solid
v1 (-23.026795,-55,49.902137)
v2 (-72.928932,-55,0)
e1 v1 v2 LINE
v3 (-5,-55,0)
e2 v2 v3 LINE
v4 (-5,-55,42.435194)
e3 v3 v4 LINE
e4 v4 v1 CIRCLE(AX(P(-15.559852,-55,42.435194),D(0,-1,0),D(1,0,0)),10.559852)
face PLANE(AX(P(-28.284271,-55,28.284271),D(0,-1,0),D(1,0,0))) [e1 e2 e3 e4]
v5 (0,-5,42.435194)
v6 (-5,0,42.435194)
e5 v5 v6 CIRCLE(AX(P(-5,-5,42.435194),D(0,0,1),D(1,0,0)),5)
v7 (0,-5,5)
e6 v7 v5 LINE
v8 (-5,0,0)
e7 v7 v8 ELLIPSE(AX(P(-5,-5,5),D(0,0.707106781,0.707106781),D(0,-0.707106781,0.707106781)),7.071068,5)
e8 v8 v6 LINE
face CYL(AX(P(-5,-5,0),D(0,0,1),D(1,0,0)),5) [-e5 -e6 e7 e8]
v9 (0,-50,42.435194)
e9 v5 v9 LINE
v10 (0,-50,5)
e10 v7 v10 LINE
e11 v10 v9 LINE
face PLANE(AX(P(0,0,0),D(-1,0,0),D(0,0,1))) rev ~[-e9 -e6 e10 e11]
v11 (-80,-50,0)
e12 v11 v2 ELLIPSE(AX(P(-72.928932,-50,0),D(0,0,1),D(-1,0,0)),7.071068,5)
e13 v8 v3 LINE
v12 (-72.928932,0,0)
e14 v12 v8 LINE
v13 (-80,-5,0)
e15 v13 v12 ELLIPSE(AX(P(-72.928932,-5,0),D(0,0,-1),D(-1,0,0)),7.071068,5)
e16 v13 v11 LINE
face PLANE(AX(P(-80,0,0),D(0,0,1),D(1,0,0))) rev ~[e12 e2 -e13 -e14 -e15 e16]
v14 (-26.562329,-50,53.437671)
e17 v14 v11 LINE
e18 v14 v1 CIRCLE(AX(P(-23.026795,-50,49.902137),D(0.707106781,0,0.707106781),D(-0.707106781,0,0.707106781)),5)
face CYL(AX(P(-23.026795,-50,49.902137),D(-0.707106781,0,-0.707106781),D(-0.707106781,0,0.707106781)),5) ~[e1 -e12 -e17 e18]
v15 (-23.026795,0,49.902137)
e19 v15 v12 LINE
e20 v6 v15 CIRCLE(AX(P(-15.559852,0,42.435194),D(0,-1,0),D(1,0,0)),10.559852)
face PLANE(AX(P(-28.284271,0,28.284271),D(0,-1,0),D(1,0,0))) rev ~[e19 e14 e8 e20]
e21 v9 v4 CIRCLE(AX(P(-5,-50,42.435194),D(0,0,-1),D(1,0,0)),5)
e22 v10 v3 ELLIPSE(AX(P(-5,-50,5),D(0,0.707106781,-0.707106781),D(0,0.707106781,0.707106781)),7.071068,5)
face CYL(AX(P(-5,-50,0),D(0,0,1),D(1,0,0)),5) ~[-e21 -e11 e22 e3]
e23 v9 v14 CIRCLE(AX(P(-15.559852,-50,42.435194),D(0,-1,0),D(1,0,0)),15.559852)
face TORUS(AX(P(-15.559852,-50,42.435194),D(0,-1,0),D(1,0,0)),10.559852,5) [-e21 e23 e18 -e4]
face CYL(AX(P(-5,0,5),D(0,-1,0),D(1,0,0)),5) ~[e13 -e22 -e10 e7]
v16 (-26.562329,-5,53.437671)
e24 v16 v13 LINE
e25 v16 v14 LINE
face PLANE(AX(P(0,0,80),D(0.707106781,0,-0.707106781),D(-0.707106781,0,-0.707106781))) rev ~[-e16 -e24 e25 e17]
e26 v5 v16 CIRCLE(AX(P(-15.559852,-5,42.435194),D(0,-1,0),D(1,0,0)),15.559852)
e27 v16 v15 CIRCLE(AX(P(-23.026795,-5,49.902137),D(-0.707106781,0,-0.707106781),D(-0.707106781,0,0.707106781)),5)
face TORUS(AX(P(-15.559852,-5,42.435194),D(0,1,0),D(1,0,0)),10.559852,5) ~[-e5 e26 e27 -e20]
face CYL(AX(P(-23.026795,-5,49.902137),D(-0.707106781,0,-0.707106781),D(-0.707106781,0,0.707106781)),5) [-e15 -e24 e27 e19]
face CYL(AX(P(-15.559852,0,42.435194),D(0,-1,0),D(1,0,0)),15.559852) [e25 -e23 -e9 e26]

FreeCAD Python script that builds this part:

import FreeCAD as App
import Part
import Sketcher
from FreeCAD import Vector
Q = App.Units.Quantity


def edges_at(feature, points):
    """Names of the edges that pass closest to the given points."""
    edges = feature.Shape.Edges
    near = lambda p: min(range(len(edges)), key=lambda i: edges[i].distToShape(Part.Vertex(*p))[0])
    return sorted({f"Edge{near(p) + 1}" for p in points})

doc = App.newDocument("Part")
body = doc.addObject("PartDesign::Body", "Body")

# Sketch on XZ plane
sketch1 = body.newObject("Sketcher::SketchObject", "Sketch")
sketch1.AttachmentSupport = (doc.getObject("XZ_Plane"), [""])
sketch1.MapMode = "FlatFace"
sketch1.addGeometry([
    Part.LineSegment(Vector(-80, 0, 0), Vector(0, 0, 0)),
    Part.LineSegment(Vector(0, 0, 0), Vector(0, 80, 0)),
    Part.LineSegment(Vector(0, 80, 0), Vector(-80, 0, 0)),
], False)
sketch1.addConstraint([
    Sketcher.Constraint("Coincident", 0, 2, 1, 1),
    Sketcher.Constraint("Coincident", 1, 2, 2, 1),
    Sketcher.Constraint("Coincident", 2, 2, 0, 1),
    Sketcher.Constraint("Horizontal", 0),
    Sketcher.Constraint("Vertical", 1),
    Sketcher.Constraint("Coincident", 0, 2, -1, 1),
    Sketcher.Constraint("Equal", 0, 1),
    Sketcher.Constraint("DistanceX", 0, 1, 0, 2, Q("80 mm")),
])
pad1 = body.newObject("PartDesign::Pad", "Pad")
pad1.Profile = sketch1
pad1.Length = 55
doc.recompute()

fillet = body.newObject("PartDesign::Fillet", "Fillet")
fillet.Base = (pad1, edges_at(pad1, [(0, -27.5, 80)]))
fillet.Radius = 15.559852
doc.recompute()

fillet2 = body.newObject("PartDesign::Fillet", "Fillet001")
fillet2.Base = (fillet, edges_at(fillet, [(0, -55, 21.218), (0, 0, 21.218), (0, -27.5, 0)]))
fillet2.Radius = 5

doc.recompute()
